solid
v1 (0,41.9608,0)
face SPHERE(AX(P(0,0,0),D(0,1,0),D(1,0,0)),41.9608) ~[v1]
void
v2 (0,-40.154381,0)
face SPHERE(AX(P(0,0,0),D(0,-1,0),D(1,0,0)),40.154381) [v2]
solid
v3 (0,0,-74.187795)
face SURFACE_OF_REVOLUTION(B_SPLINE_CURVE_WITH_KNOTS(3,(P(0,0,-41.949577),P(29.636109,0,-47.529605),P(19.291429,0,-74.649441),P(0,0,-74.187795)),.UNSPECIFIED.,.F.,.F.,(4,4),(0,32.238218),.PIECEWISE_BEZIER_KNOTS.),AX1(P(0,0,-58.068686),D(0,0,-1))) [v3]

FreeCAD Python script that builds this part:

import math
import FreeCAD as App
import Part
import Sketcher
from FreeCAD import Vector
Q = App.Units.Quantity

doc = App.newDocument("Part")
body = doc.addObject("PartDesign::Body", "Body")

# Sketch on XY plane
sketch1 = body.newObject("Sketcher::SketchObject", "Sketch")
sketch1.AttachmentSupport = (doc.getObject("XY_Plane"), [""])
sketch1.MapMode = "FlatFace"
sketch1.addGeometry(Part.ArcOfCircle(Part.Circle(Vector(0, 0, 0), Vector(0, 0, 1), 40.154381), math.radians(-90), math.radians(90)), False)
sketch1.addGeometry(Part.LineSegment(Vector(0, -40.154381, 0), Vector(0, -41.9608, 0)), False)
sketch1.addGeometry(Part.ArcOfCircle(Part.Circle(Vector(0, 0, 0), Vector(0, 0, 1), 41.9608), math.radians(-90), math.radians(90)), False)
sketch1.addGeometry(Part.LineSegment(Vector(0, 41.9608, 0), Vector(0, 40.154381, 0)), False)
sketch1.addConstraint(Sketcher.Constraint("Coincident", 0, 1, 1, 1))
sketch1.addConstraint(Sketcher.Constraint("Coincident", 1, 2, 2, 1))
sketch1.addConstraint(Sketcher.Constraint("Coincident", 2, 2, 3, 1))
sketch1.addConstraint(Sketcher.Constraint("Coincident", 3, 2, 0, 2))
sketch1.addConstraint(Sketcher.Constraint("Vertical", 1))
sketch1.addConstraint(Sketcher.Constraint("Vertical", 3))
sketch1.addConstraint(Sketcher.Constraint("Coincident", 0, 3, -1, 1))
sketch1.addConstraint(Sketcher.Constraint("Coincident", 2, 3, -1, 1))
sketch1.addConstraint(Sketcher.Constraint("PointOnObject", 0, 1, -2))
sketch1.addConstraint(Sketcher.Constraint("PointOnObject", 2, 2, -2))
sketch1.addConstraint(Sketcher.Constraint("Radius", 2, Q("1.652 in")))
sketch1.addConstraint(Sketcher.Constraint("Radius", 0, 40.154381))
revolution = body.newObject("PartDesign::Revolution", "Revolution")
revolution.Profile = sketch1
revolution.ReferenceAxis = (sketch1, ["V_Axis"])
revolution.Angle = 360
body2 = doc.addObject("PartDesign::Body", "Body001")

# Sketch on XZ plane
sketch2 = body2.newObject("Sketcher::SketchObject", "Sketch001")
sketch2.AttachmentSupport = (doc.getObject("XZ_Plane001"), [""])
sketch2.MapMode = "FlatFace"
sketch2.addGeometry(Part.BSplineCurve([Vector(0, -41.949577, 0), Vector(29.636109, -47.529605, 0), Vector(19.291429, -74.649441, 0), Vector(0, -74.187795, 0)], [4, 4], [0, 32.238218], False, 3, [1, 1, 1, 1], False), False)
sketch2.addGeometry(Part.LineSegment(Vector(0, -41.949577, 0), Vector(0, -74.187795, 0)), False)
sketch2.addConstraint(Sketcher.Constraint("Block", 0))
sketch2.addConstraint(Sketcher.Constraint("Coincident", 0, 1, 1, 1))
sketch2.addConstraint(Sketcher.Constraint("Coincident", 1, 2, 0, 2))
revolution2 = body2.newObject("PartDesign::Revolution", "Revolution001")
revolution2.Profile = sketch2
revolution2.ReferenceAxis = (sketch2, ["V_Axis"])
revolution2.Angle = 360

doc.recompute()
